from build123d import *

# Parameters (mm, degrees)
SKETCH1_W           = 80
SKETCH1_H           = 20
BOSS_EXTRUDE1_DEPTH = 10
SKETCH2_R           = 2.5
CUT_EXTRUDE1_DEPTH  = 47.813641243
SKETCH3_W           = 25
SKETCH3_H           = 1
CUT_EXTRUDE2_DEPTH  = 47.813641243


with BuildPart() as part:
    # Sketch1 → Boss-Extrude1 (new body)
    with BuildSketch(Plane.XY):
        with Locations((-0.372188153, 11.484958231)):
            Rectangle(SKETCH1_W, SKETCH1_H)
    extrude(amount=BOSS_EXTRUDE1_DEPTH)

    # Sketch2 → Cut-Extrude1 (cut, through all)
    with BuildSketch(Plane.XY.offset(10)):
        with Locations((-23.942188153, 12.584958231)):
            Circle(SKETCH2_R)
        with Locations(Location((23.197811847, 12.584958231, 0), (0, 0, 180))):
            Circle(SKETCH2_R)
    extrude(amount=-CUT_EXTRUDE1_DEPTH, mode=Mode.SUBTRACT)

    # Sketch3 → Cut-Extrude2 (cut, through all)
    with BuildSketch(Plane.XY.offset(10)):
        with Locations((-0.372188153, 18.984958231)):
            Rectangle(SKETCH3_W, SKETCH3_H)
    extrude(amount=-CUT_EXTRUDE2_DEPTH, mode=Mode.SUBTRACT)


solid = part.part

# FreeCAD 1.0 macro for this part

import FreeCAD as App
import Part
import Sketcher

V = App.Vector
Q = App.Units.Quantity


def add_polygon(sketch, points):
    """Adds a closed chain of lines whose ends are joined by coincident constraints."""
    first, n = sketch.GeometryCount, len(points)
    for a, b in zip(points, points[1:] + points[:1]):
        sketch.addGeometry(Part.LineSegment(App.Vector(*a, 0), App.Vector(*b, 0)), False)
    for i in range(n):
        sketch.addConstraint(Sketcher.Constraint("Coincident", first + i, 2, first + (i + 1) % n, 1))

doc = App.newDocument("Part")
params = doc.addObject("Spreadsheet::Sheet", "Params")
for row, (alias, value) in enumerate([
    ("sketch1_width", "80 mm"),
    ("sketch1_height", "20 mm"),
    ("pad1_length", "10 mm"),
    ("sketch2_diameter", "5 mm"),
    ("sketch3_width", "25 mm"),
    ("sketch3_height", "1 mm"),
], start=1):
    params.set(f"A{row}", alias)
    params.set(f"B{row}", "=" + value)
    params.setAlias(f"B{row}", alias)

body = doc.addObject("PartDesign::Body", "Body")

# Sketch on XY plane
sketch1 = doc.addObject("Sketcher::SketchObject", "Sketch")
body.addObject(sketch1)
sketch1.AttachmentSupport = (doc.XY_Plane, [""])
sketch1.MapMode = "FlatFace"
add_polygon(sketch1, [(-40, 21), (-40, 1), (40, 1), (40, 21)])  # lines 0-3
sketch1.addConstraint([
    Sketcher.Constraint("Vertical", 0),
    Sketcher.Constraint("Horizontal", 1),
    Sketcher.Constraint("Vertical", 2),
    Sketcher.Constraint("Horizontal", 3),
    Sketcher.Constraint("DistanceX", 1, 1, 1, 2, Q("80 mm")),
    Sketcher.Constraint("DistanceY", 0, 2, 0, 1, Q("20 mm")),
    Sketcher.Constraint("DistanceX", 0, 2, -1, 1, Q("40.372188 mm")),
    Sketcher.Constraint("DistanceY", -1, 1, 0, 2, Q("1.484958 mm")),
])
sketch1.setExpression("Constraints[8]", "Params.sketch1_width")
sketch1.setExpression("Constraints[9]", "Params.sketch1_height")
pad1 = doc.addObject("PartDesign::Pad", "Pad")
body.addObject(pad1)
pad1.Profile = sketch1
pad1.setExpression("Length", "Params.pad1_length")

# Sketch on XY plane
sketch2 = doc.addObject("Sketcher::SketchObject", "Sketch001")
body.addObject(sketch2)
sketch2.AttachmentSupport = (doc.XY_Plane, [""])
sketch2.MapMode = "FlatFace"
sketch2.AttachmentOffset = App.Placement(V(0, 0, 10), App.Rotation())
sketch2.addGeometry([
    Part.Circle(V(-23.9, 12.6, 0), V(0, 0, 1), 2.5),
    Part.Circle(V(23.2, 12.6, 0), V(0, 0, 1), 2.5),
], False)
sketch2.addConstraint([
    Sketcher.Constraint("Equal", 0, 1),
    Sketcher.Constraint("Horizontal", 0, 3, 1, 3),
    Sketcher.Constraint("Diameter", 0, Q("5 mm")),
    Sketcher.Constraint("DistanceX", 0, 3, 1, 3, Q("47.14 mm")),
    Sketcher.Constraint("DistanceX", 0, 3, -1, 1, Q("23.942188 mm")),
    Sketcher.Constraint("DistanceY", -1, 1, 0, 3, Q("12.584958 mm")),
])
sketch2.setExpression("Constraints[2]", "Params.sketch2_diameter")
pocket1 = doc.addObject("PartDesign::Pocket", "Pocket")
body.addObject(pocket1)
pocket1.Profile = sketch2
pocket1.Type = "ThroughAll"

# Sketch on XY plane
sketch3 = doc.addObject("Sketcher::SketchObject", "Sketch002")
body.addObject(sketch3)
sketch3.AttachmentSupport = (doc.XY_Plane, [""])
sketch3.MapMode = "FlatFace"
sketch3.AttachmentOffset = App.Placement(V(0, 0, 10), App.Rotation())
add_polygon(sketch3, [(-12.9, 19.5), (-12.9, 18.5), (12.1, 18.5), (12.1, 19.5)])  # lines 0-3
sketch3.addConstraint([
    Sketcher.Constraint("Vertical", 0),
    Sketcher.Constraint("Horizontal", 1),
    Sketcher.Constraint("Vertical", 2),
    Sketcher.Constraint("Horizontal", 3),
    Sketcher.Constraint("DistanceX", 1, 1, 1, 2, Q("25 mm")),
    Sketcher.Constraint("DistanceY", 0, 2, 0, 1, Q("1 mm")),
    Sketcher.Constraint("DistanceX", 0, 2, -1, 1, Q("12.872188 mm")),
    Sketcher.Constraint("DistanceY", -1, 1, 0, 2, Q("18.484958 mm")),
])
sketch3.setExpression("Constraints[8]", "Params.sketch3_width")
sketch3.setExpression("Constraints[9]", "Params.sketch3_height")
pocket2 = doc.addObject("PartDesign::Pocket", "Pocket001")
body.addObject(pocket2)
pocket2.Profile = sketch3
pocket2.Type = "ThroughAll"

doc.recompute()
